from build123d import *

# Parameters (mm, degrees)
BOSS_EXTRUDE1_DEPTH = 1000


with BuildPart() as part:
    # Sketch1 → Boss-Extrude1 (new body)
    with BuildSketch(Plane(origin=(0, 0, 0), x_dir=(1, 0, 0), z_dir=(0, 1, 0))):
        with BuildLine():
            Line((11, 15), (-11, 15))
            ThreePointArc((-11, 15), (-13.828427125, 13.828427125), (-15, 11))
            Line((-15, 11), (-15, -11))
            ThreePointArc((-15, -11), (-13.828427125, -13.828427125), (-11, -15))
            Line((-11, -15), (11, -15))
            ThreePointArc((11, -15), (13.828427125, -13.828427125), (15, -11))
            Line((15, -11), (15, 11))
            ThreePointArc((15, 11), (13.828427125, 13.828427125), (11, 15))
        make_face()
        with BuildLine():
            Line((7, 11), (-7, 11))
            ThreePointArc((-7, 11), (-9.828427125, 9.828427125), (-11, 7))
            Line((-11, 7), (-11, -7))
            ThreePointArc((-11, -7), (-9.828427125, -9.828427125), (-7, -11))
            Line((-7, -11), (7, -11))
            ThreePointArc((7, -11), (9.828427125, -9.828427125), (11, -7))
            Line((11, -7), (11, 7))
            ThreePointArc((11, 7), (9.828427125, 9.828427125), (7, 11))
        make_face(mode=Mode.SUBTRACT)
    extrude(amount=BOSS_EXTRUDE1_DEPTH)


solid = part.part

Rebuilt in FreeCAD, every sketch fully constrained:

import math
import FreeCAD as App
import Part
import Sketcher
Q = App.Units.Quantity

doc = App.newDocument("Part")
body = doc.addObject("PartDesign::Body", "Body")

sketch1 = body.newObject("Sketcher::SketchObject", "Sketch")
sketch1.AttachmentSupport = (doc.getObject("XZ_Plane"), [""])
sketch1.MapMode = "FlatFace"
sketch1.addGeometry([
    Part.LineSegment(App.Vector(11, -15, 0), App.Vector(-11, -15, 0)),
    Part.ArcOfCircle(Part.Circle(App.Vector(-11, -11, 0), App.Vector(0, 0, 1), 4), math.radians(180), math.radians(270)),
    Part.LineSegment(App.Vector(-15, -11, 0), App.Vector(-15, 11, 0)),
    Part.ArcOfCircle(Part.Circle(App.Vector(-11, 11, 0), App.Vector(0, 0, 1), 4), math.radians(90), math.radians(180)),
    Part.LineSegment(App.Vector(-11, 15, 0), App.Vector(11, 15, 0)),
    Part.ArcOfCircle(Part.Circle(App.Vector(11, 11, 0), App.Vector(0, 0, 1), 4), math.radians(0), math.radians(90)),
    Part.LineSegment(App.Vector(15, 11, 0), App.Vector(15, -11, 0)),
    Part.ArcOfCircle(Part.Circle(App.Vector(11, -11, 0), App.Vector(0, 0, 1), 4), math.radians(-90), math.radians(0)),
    Part.LineSegment(App.Vector(-7, -11, 0), App.Vector(7, -11, 0)),
    Part.ArcOfCircle(Part.Circle(App.Vector(7, -7, 0), App.Vector(0, 0, 1), 4), math.radians(-90), math.radians(0)),
    Part.LineSegment(App.Vector(11, -7, 0), App.Vector(11, 7, 0)),
    Part.ArcOfCircle(Part.Circle(App.Vector(7, 7, 0), App.Vector(0, 0, 1), 4), math.radians(0), math.radians(90)),
    Part.LineSegment(App.Vector(7, 11, 0), App.Vector(-7, 11, 0)),
    Part.ArcOfCircle(Part.Circle(App.Vector(-7, 7, 0), App.Vector(0, 0, 1), 4), math.radians(90), math.radians(180)),
    Part.LineSegment(App.Vector(-11, 7, 0), App.Vector(-11, -7, 0)),
    Part.ArcOfCircle(Part.Circle(App.Vector(-7, -7, 0), App.Vector(0, 0, 1), 4), math.radians(180), math.radians(270)),
], False)
sketch1.addConstraint([
    Sketcher.Constraint("Tangent", 0, 2, 1, 2),
    Sketcher.Constraint("Tangent", 1, 1, 2, 1),
    Sketcher.Constraint("Tangent", 2, 2, 3, 2),
    Sketcher.Constraint("Tangent", 3, 1, 4, 1),
    Sketcher.Constraint("Tangent", 4, 2, 5, 2),
    Sketcher.Constraint("Tangent", 5, 1, 6, 1),
    Sketcher.Constraint("Tangent", 6, 2, 7, 2),
    Sketcher.Constraint("Tangent", 7, 1, 0, 1),
    Sketcher.Constraint("Tangent", 8, 2, 9, 1),
    Sketcher.Constraint("Tangent", 9, 2, 10, 1),
    Sketcher.Constraint("Tangent", 10, 2, 11, 1),
    Sketcher.Constraint("Tangent", 11, 2, 12, 1),
    Sketcher.Constraint("Tangent", 12, 2, 13, 1),
    Sketcher.Constraint("Tangent", 13, 2, 14, 1),
    Sketcher.Constraint("Tangent", 14, 2, 15, 1),
    Sketcher.Constraint("Tangent", 15, 2, 8, 1),
    Sketcher.Constraint("Horizontal", 0),
    Sketcher.Constraint("Vertical", 2),
    Sketcher.Constraint("Horizontal", 4),
    Sketcher.Constraint("Vertical", 6),
    Sketcher.Constraint("Horizontal", 8),
    Sketcher.Constraint("Vertical", 10),
    Sketcher.Constraint("Horizontal", 12),
    Sketcher.Constraint("Vertical", 14),
    Sketcher.Constraint("Equal", 1, 3),
    Sketcher.Constraint("Equal", 3, 5),
    Sketcher.Constraint("Equal", 5, 7),
    Sketcher.Constraint("Equal", 7, 9),
    Sketcher.Constraint("Equal", 9, 11),
    Sketcher.Constraint("Equal", 11, 13),
    Sketcher.Constraint("Equal", 13, 15),
    Sketcher.Constraint("Symmetric", 1, 3, 5, 3, -1, 1),
    Sketcher.Constraint("Symmetric", 9, 3, 13, 3, -1, 1),
    Sketcher.Constraint("Horizontal", 6, 2, 8, 2),
    Sketcher.Constraint("Vertical", 7, 1, 9, 2),
    Sketcher.Constraint("Equal", 4, 2),
    Sketcher.Constraint("Radius", 1, Q("4 mm")),
    Sketcher.Constraint("DistanceX", 0, 2, 0, 1, Q("22 mm")),
])
pad1 = body.newObject("PartDesign::Pad", "Pad")
pad1.Profile = sketch1
pad1.Length = 1000
pad1.Reversed = True

doc.recompute()
